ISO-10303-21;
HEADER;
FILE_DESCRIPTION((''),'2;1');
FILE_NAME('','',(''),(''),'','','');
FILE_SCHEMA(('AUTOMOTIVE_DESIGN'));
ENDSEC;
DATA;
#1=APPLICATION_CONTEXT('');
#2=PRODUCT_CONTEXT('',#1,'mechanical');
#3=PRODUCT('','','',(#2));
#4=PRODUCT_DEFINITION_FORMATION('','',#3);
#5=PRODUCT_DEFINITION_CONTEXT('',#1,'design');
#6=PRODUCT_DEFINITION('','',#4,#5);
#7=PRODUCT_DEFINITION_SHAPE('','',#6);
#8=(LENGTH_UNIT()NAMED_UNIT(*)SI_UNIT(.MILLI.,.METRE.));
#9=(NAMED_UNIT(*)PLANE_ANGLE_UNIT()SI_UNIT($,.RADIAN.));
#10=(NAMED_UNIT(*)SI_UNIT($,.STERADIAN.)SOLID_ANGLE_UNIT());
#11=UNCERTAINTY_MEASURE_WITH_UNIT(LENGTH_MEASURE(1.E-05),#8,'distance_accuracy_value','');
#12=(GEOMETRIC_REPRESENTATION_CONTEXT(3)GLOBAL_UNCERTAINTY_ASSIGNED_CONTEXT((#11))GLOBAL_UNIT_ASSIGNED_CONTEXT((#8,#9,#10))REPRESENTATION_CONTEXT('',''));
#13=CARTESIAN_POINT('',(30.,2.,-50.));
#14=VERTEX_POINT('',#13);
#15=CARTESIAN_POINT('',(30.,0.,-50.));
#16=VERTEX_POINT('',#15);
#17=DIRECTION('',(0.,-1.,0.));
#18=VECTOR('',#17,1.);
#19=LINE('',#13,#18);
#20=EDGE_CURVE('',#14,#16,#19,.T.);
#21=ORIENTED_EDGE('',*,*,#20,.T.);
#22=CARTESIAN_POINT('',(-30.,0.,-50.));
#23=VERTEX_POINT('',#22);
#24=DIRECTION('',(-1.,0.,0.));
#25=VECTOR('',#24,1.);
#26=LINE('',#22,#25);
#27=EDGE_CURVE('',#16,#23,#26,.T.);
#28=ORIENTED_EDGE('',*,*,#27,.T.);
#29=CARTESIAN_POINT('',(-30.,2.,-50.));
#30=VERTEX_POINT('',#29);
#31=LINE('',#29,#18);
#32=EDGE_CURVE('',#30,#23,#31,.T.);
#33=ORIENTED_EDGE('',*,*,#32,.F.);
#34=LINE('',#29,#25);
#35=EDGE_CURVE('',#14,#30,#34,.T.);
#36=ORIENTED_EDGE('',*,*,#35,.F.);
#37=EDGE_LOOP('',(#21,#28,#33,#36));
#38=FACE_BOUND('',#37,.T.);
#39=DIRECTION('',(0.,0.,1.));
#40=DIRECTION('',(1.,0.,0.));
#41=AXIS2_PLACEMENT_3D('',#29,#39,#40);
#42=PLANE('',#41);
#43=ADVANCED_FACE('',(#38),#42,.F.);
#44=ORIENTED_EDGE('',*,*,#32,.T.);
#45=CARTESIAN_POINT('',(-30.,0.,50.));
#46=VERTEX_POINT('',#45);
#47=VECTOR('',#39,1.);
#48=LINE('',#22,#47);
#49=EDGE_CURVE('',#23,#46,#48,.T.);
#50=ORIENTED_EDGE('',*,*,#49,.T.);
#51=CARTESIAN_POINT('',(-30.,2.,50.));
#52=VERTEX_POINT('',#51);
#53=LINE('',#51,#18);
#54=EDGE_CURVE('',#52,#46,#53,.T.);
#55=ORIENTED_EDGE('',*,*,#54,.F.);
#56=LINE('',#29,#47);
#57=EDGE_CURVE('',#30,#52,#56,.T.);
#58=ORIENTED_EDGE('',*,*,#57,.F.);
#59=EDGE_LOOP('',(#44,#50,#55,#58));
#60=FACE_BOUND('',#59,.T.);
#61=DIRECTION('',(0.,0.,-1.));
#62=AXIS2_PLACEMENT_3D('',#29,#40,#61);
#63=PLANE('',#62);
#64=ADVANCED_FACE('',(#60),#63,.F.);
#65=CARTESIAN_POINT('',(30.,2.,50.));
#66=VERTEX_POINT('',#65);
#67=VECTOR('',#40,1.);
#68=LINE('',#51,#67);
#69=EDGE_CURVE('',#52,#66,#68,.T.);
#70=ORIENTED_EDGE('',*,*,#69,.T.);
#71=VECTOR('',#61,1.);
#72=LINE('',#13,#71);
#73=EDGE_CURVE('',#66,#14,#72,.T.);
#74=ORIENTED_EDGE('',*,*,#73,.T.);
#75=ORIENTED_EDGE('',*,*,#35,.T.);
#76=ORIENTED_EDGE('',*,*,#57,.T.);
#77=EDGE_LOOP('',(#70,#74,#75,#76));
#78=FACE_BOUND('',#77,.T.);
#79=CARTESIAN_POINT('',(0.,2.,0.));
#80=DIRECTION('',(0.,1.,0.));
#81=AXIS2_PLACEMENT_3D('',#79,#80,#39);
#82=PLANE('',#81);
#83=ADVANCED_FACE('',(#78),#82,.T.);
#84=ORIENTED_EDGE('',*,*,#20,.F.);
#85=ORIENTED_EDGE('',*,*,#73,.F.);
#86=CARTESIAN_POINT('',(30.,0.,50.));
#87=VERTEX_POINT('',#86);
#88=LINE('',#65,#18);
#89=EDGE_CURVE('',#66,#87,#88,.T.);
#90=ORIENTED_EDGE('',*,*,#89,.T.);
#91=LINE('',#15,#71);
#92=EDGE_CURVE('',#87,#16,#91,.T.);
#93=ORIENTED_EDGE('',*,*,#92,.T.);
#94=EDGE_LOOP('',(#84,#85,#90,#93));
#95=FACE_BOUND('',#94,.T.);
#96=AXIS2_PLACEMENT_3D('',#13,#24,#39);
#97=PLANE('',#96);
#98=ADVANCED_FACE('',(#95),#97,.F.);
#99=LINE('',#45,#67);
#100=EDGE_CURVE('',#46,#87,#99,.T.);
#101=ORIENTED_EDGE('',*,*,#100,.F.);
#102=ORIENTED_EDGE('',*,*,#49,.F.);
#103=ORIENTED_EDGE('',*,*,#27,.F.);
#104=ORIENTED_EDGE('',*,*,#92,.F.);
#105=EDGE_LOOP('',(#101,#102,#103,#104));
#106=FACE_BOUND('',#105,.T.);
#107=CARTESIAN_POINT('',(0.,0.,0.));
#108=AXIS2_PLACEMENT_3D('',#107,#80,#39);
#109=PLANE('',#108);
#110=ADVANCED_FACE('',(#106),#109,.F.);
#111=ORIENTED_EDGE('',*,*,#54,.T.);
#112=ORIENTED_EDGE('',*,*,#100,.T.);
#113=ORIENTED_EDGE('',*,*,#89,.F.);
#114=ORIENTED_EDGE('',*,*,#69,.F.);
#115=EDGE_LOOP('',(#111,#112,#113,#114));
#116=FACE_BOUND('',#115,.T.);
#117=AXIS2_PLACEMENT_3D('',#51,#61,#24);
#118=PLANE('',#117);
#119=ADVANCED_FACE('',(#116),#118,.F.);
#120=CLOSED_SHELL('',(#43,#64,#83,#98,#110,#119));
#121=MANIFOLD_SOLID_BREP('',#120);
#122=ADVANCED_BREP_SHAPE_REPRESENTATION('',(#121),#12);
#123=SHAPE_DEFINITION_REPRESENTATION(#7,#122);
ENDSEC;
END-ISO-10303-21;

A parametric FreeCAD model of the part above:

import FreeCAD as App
import Part
import Sketcher

V = App.Vector


def add_polygon(sketch, points):
    """Adds a closed chain of lines whose ends are joined by coincident constraints."""
    first, n = sketch.GeometryCount, len(points)
    for a, b in zip(points, points[1:] + points[:1]):
        sketch.addGeometry(Part.LineSegment(App.Vector(*a, 0), App.Vector(*b, 0)), False)
    for i in range(n):
        sketch.addConstraint(Sketcher.Constraint("Coincident", first + i, 2, first + (i + 1) % n, 1))

doc = App.newDocument("Part")
params = doc.addObject("Spreadsheet::Sheet", "Params")
for row, (alias, value) in enumerate([
    ("sketch1_width", "60 mm"),
    ("sketch1_height", "100 mm"),
    ("pad1_length", "2 mm"),
], start=1):
    params.set(f"A{row}", alias)
    params.set(f"B{row}", "=" + value)
    params.setAlias(f"B{row}", alias)

body = doc.addObject("PartDesign::Body", "Body")

sketch1 = body.newObject("Sketcher::SketchObject", "Sketch")
sketch1.AttachmentSupport = (doc.getObject("XZ_Plane"), [""])
sketch1.MapMode = "FlatFace"
add_polygon(sketch1, [(-30, -50), (-30, 50), (30, 50), (30, -50)])
sketch1.addConstraint(Sketcher.Constraint("Vertical", 0))
sketch1.addConstraint(Sketcher.Constraint("Horizontal", 1))
sketch1.addConstraint(Sketcher.Constraint("Vertical", 2))
sketch1.addConstraint(Sketcher.Constraint("Horizontal", 3))
sketch1.addConstraint(Sketcher.Constraint("Symmetric", 0, 2, 2, 2, -1, 1))
sketch1.addConstraint(Sketcher.Constraint("DistanceX", 1, 1, 1, 2, 60.0))
sketch1.addConstraint(Sketcher.Constraint("DistanceY", 0, 1, 0, 2, 100.0))
sketch1.setExpression("Constraints[9]", "Params.sketch1_width")
sketch1.setExpression("Constraints[10]", "Params.sketch1_height")
pad1 = body.newObject("PartDesign::Pad", "Pad")
pad1.Profile = sketch1
pad1.setExpression("Length", "Params.pad1_length")
pad1.Reversed = True

doc.recompute()
